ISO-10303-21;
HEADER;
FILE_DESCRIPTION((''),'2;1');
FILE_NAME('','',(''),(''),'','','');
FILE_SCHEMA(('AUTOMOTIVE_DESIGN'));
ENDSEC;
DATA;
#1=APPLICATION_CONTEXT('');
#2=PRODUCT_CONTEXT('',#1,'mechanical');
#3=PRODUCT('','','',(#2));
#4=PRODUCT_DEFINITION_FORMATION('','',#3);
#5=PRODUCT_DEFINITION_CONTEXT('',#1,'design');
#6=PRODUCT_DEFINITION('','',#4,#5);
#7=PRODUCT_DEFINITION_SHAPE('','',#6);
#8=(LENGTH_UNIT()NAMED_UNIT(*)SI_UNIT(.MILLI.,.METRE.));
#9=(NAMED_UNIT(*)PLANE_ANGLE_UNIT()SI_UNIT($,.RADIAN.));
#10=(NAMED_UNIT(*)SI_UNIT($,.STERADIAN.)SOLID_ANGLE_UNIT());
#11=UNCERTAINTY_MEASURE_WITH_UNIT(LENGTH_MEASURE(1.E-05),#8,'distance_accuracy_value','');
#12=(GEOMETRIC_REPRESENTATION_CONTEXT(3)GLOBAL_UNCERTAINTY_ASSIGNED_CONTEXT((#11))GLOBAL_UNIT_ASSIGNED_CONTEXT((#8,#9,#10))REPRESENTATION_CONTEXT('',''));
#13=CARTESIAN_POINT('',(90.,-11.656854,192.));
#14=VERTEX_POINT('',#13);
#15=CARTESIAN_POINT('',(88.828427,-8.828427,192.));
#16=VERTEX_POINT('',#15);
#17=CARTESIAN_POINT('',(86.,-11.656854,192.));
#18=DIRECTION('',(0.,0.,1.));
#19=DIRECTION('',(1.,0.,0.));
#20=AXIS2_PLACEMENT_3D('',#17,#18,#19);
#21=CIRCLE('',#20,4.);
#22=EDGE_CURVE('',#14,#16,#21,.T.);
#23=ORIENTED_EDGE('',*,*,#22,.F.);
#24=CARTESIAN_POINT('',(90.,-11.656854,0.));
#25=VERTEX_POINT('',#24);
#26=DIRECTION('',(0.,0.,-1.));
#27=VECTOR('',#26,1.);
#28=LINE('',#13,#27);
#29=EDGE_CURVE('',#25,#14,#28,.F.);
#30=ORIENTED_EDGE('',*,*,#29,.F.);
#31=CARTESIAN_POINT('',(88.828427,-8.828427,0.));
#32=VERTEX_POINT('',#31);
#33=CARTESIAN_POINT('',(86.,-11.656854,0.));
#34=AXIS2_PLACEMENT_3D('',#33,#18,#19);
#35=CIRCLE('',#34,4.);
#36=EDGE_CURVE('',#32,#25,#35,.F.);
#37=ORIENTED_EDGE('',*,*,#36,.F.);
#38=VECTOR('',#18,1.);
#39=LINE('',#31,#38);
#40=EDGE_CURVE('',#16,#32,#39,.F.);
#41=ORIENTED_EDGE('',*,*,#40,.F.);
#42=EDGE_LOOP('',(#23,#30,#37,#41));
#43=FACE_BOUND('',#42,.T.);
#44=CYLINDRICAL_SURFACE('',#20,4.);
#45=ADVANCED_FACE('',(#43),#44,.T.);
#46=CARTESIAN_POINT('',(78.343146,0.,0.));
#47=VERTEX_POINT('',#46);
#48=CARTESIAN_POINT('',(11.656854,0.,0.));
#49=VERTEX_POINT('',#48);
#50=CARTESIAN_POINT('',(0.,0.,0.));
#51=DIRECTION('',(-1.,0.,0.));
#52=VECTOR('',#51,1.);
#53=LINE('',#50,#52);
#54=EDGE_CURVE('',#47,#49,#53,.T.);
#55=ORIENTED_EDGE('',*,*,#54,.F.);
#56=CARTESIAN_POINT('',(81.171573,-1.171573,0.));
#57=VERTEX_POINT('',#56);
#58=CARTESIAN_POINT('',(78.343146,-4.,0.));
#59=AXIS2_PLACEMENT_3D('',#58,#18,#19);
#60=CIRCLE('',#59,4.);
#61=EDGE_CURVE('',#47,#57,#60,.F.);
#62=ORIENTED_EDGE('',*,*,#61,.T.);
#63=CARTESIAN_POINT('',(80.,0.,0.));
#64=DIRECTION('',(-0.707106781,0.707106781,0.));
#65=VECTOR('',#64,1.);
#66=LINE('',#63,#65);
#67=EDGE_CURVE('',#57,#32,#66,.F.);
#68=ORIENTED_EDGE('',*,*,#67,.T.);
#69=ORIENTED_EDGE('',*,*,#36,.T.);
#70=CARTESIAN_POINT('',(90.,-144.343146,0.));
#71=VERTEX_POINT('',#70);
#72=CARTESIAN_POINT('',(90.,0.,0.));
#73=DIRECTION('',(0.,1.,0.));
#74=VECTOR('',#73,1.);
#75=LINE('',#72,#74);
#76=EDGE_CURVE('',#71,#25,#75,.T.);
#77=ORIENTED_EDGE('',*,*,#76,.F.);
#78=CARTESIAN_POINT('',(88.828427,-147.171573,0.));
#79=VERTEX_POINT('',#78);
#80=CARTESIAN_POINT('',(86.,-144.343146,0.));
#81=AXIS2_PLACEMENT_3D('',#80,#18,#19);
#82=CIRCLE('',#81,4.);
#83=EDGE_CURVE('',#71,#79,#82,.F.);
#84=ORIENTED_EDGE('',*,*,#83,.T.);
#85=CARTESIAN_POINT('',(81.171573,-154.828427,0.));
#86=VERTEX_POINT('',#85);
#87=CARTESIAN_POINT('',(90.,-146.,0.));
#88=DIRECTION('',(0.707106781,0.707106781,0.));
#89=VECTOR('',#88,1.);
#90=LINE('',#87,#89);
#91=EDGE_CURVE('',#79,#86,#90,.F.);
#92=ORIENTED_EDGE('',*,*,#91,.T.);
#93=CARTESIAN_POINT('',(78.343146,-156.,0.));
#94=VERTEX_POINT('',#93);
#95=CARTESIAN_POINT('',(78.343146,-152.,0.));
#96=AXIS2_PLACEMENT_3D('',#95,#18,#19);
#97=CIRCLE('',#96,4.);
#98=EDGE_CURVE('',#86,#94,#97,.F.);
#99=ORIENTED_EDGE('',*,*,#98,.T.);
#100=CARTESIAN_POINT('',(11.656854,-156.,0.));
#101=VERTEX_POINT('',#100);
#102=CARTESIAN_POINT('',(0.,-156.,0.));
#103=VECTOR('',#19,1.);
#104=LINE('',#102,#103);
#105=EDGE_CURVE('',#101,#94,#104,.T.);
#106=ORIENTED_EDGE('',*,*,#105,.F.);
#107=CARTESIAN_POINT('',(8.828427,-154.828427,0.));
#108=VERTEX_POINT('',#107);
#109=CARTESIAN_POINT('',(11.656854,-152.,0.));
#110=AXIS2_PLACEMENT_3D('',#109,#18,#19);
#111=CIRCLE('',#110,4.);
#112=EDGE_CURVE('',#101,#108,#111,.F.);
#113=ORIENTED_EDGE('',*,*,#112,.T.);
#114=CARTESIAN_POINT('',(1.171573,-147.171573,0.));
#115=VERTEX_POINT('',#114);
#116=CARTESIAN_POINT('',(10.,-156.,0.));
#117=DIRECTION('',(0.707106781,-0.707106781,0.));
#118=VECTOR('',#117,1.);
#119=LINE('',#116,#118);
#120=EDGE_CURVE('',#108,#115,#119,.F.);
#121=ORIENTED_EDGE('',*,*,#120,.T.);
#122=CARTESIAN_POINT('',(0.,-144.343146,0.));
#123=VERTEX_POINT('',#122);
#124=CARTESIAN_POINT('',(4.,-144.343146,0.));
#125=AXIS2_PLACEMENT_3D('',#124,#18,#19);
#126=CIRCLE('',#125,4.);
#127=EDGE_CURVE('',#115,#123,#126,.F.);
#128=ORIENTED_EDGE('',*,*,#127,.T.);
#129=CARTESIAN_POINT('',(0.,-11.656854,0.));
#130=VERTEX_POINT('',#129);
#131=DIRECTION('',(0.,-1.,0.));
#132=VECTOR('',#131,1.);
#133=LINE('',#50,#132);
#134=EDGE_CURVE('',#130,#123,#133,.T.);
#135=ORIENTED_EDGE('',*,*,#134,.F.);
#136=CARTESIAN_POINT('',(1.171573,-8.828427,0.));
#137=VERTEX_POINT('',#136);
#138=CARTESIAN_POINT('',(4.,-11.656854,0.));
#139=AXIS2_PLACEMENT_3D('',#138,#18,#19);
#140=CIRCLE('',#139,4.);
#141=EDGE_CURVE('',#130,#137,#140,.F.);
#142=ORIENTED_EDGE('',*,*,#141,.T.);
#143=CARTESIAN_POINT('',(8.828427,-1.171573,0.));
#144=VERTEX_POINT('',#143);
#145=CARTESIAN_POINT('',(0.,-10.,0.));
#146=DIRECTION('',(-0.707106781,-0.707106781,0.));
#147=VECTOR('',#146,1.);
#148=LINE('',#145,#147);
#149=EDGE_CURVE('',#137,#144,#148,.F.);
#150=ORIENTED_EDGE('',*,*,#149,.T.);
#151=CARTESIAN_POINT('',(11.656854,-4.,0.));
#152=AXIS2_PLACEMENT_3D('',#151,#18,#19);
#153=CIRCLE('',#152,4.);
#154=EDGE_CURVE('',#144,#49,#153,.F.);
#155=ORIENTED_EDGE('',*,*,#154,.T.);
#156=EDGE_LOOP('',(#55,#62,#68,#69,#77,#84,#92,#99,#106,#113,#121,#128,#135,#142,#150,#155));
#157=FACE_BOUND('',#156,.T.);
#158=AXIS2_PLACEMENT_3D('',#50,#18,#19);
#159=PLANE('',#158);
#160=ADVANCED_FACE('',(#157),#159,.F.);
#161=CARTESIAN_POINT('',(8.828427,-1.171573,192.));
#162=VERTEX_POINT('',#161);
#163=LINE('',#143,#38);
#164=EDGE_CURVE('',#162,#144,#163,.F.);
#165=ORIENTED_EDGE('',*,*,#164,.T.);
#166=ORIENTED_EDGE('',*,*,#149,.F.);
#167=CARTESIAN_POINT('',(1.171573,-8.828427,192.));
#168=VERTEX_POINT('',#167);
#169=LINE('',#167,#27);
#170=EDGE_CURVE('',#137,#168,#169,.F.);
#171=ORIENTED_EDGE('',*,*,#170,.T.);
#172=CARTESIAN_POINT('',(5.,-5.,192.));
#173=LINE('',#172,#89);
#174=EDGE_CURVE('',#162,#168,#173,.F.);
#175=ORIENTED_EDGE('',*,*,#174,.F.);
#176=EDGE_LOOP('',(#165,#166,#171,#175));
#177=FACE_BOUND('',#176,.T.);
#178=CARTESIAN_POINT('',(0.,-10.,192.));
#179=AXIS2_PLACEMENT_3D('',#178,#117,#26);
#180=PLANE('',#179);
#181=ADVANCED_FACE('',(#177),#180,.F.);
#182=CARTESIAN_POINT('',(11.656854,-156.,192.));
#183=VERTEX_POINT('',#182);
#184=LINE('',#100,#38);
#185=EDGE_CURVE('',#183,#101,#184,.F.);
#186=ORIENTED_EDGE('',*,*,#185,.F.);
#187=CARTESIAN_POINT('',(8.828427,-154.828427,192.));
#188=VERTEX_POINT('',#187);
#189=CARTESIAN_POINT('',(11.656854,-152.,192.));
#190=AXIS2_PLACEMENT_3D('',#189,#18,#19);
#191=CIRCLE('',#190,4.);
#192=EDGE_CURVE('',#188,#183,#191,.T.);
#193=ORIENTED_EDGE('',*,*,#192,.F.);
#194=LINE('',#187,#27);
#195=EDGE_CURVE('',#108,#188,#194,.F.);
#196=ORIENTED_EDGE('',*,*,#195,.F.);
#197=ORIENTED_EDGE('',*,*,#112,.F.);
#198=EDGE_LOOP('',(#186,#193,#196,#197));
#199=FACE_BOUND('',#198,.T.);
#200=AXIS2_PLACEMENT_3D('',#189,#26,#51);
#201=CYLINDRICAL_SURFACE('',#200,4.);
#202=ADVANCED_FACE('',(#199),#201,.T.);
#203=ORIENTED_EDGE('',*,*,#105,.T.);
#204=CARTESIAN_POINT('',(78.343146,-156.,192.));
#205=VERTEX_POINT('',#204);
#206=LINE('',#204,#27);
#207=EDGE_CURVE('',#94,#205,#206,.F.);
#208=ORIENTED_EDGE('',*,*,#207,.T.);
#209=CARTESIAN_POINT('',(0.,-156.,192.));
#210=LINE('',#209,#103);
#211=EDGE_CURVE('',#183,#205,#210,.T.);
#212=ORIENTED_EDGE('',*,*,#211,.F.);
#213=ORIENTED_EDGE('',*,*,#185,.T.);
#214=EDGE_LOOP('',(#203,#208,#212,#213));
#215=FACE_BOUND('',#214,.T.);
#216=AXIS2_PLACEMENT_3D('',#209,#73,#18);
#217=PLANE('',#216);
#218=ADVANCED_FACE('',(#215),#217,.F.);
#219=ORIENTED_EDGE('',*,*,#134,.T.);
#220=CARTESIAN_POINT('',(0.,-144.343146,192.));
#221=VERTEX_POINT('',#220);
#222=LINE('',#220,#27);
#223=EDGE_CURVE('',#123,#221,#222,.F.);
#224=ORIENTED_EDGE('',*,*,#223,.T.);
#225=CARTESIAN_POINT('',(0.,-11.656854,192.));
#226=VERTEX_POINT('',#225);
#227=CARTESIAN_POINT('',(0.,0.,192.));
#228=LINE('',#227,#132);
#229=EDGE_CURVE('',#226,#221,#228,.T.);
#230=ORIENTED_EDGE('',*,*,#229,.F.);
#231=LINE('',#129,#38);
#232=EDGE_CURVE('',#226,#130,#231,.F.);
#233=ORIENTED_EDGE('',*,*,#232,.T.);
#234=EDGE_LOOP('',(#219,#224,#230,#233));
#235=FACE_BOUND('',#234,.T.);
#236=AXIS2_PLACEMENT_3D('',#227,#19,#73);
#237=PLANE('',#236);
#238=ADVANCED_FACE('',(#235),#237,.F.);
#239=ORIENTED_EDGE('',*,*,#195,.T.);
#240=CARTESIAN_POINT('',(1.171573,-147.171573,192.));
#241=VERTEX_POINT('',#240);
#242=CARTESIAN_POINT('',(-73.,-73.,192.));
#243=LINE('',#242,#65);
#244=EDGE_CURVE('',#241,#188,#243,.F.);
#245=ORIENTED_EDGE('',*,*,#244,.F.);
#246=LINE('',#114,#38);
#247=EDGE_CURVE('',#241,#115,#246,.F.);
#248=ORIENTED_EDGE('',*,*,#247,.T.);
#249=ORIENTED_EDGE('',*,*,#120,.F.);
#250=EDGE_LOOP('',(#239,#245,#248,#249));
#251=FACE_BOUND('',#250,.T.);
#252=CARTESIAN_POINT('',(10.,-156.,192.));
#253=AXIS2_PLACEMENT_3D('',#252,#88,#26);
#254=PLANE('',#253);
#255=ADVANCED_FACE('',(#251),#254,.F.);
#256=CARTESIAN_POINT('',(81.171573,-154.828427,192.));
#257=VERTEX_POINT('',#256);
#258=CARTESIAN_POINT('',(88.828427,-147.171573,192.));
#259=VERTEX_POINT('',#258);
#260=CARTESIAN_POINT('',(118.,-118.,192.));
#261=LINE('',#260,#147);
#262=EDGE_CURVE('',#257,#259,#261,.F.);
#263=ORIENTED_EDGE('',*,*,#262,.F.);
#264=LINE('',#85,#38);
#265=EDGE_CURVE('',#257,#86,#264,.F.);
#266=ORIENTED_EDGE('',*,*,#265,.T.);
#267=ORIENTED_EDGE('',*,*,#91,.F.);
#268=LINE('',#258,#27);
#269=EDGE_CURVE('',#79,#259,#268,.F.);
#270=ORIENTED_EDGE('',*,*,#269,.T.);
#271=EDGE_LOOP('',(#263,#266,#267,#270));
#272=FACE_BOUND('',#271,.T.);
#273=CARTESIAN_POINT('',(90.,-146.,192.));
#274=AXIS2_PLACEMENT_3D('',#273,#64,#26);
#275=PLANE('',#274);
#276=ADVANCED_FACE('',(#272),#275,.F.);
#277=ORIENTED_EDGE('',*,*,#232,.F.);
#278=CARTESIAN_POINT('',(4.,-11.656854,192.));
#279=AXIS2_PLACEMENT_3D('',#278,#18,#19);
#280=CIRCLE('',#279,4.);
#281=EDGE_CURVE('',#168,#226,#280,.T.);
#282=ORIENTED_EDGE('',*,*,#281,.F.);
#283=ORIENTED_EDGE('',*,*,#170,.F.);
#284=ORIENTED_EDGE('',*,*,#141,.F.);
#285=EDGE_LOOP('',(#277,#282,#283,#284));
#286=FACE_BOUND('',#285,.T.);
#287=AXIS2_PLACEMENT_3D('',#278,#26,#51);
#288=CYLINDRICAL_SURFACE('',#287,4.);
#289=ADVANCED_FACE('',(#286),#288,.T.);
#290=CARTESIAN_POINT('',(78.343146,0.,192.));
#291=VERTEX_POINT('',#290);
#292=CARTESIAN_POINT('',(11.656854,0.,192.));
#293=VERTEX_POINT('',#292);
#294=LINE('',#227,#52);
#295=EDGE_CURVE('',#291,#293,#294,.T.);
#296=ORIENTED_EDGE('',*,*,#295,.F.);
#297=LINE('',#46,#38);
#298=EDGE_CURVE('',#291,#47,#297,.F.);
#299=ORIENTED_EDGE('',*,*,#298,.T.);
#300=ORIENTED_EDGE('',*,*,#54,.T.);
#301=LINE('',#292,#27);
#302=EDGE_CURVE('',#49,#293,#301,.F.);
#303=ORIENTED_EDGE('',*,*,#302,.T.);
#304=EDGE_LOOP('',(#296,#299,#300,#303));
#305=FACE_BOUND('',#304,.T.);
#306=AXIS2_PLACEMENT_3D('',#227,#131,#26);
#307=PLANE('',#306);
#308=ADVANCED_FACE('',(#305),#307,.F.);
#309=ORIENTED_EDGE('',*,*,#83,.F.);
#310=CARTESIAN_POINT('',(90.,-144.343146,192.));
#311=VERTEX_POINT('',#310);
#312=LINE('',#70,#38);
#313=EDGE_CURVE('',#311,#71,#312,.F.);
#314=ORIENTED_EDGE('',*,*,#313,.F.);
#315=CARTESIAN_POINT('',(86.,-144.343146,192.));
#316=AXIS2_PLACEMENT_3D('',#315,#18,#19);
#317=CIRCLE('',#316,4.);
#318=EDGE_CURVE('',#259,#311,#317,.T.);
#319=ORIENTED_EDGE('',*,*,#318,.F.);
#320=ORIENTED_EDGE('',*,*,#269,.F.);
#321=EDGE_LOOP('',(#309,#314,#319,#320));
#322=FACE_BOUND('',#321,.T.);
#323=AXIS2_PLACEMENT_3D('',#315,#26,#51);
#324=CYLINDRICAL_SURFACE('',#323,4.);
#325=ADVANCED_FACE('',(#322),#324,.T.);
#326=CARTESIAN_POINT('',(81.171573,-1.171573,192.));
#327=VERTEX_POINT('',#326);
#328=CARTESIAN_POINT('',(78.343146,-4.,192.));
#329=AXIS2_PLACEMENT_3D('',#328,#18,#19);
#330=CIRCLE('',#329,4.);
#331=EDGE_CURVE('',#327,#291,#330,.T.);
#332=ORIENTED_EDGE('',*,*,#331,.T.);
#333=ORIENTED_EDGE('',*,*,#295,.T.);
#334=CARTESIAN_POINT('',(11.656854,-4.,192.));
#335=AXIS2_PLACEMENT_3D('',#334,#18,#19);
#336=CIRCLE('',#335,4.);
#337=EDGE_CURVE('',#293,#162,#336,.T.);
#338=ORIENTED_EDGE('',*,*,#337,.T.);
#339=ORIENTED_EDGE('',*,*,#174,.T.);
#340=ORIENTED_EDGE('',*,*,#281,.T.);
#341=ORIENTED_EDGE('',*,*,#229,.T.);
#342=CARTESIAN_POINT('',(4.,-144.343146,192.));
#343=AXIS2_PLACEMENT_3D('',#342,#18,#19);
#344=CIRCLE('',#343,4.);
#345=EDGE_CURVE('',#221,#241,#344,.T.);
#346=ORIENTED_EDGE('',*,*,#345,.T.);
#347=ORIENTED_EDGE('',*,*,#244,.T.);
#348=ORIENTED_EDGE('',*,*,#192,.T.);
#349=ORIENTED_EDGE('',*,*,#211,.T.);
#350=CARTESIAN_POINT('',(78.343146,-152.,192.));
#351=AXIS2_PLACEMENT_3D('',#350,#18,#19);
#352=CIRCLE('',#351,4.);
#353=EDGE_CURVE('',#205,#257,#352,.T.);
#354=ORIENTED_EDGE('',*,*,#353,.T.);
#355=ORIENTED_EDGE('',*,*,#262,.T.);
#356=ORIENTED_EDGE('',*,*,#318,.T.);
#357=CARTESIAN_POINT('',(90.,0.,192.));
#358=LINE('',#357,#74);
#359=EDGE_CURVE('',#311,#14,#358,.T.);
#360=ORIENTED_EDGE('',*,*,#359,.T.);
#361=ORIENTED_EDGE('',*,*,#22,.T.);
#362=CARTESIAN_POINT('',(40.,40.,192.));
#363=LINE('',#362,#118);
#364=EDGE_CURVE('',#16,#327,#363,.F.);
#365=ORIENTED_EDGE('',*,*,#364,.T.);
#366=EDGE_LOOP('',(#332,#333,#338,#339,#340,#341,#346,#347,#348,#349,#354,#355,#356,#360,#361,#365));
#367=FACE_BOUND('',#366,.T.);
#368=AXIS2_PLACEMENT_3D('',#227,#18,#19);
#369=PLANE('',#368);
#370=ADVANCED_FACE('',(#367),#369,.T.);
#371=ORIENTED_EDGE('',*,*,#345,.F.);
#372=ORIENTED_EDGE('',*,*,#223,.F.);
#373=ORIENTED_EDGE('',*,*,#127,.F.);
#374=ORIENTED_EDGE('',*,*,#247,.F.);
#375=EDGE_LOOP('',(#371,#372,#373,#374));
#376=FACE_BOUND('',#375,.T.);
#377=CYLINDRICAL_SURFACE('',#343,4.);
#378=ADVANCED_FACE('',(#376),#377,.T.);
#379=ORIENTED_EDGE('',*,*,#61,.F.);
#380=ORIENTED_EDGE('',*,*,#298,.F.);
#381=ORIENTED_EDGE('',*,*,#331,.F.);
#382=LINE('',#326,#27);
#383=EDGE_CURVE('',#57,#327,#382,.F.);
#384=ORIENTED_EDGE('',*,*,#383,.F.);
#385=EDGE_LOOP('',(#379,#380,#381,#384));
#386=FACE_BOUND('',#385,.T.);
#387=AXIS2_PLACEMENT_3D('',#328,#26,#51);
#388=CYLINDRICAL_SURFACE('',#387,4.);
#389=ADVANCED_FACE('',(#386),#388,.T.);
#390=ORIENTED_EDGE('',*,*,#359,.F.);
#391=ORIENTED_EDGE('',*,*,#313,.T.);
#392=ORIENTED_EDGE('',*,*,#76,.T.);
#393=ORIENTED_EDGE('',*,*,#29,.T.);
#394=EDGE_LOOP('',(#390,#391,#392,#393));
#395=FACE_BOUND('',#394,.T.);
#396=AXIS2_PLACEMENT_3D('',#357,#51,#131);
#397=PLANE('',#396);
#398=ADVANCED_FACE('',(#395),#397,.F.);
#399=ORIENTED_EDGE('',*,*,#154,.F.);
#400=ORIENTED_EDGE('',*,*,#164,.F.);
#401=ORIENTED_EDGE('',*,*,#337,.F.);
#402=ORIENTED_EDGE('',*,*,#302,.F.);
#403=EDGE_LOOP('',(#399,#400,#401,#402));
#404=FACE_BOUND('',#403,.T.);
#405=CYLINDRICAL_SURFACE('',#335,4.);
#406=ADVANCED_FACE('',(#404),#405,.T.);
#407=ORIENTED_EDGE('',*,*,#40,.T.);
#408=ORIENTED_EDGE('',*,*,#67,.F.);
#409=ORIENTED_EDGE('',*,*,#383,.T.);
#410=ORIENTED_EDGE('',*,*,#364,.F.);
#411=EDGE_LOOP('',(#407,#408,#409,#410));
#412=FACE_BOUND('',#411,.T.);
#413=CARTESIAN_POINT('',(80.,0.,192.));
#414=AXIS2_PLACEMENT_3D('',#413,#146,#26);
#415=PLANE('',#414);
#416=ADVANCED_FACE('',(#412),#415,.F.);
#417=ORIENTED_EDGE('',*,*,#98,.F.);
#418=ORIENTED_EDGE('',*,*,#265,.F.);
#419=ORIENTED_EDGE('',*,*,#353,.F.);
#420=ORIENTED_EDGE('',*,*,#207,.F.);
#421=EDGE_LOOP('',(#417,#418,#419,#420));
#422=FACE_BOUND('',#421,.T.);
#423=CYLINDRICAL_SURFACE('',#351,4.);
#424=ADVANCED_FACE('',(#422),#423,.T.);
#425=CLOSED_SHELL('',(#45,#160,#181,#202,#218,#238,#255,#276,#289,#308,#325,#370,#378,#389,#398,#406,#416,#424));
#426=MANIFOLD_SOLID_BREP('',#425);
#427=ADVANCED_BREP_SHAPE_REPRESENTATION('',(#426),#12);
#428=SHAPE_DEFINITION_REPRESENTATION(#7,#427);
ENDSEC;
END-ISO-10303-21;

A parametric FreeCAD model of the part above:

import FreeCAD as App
import Part
import Sketcher


def edges_at(feature, points):
    """Names of the edges that pass closest to the given points."""
    edges = feature.Shape.Edges
    near = lambda p: min(range(len(edges)), key=lambda i: edges[i].distToShape(Part.Vertex(*p))[0])
    return sorted({f"Edge{near(p) + 1}" for p in points})

doc = App.newDocument("Part")
body = doc.addObject("PartDesign::Body", "Body")

# Sketch on XY plane
sketch1 = doc.addObject("Sketcher::SketchObject", "Sketch")
body.addObject(sketch1)
sketch1.AttachmentSupport = (doc.XY_Plane, [""])
sketch1.MapMode = "FlatFace"
sketch1.addGeometry(Part.LineSegment(App.Vector(0, 0, 0), App.Vector(0, -156, 0)), False)
sketch1.addGeometry(Part.LineSegment(App.Vector(0, -156, 0), App.Vector(90, -156, 0)), False)
sketch1.addGeometry(Part.LineSegment(App.Vector(90, -156, 0), App.Vector(90, 0, 0)), False)
sketch1.addGeometry(Part.LineSegment(App.Vector(90, 0, 0), App.Vector(0, 0, 0)), False)
sketch1.addConstraint(Sketcher.Constraint("Coincident", 0, 2, 1, 1))
sketch1.addConstraint(Sketcher.Constraint("Coincident", 1, 2, 2, 1))
sketch1.addConstraint(Sketcher.Constraint("Coincident", 2, 2, 3, 1))
sketch1.addConstraint(Sketcher.Constraint("Coincident", 3, 2, 0, 1))
sketch1.addConstraint(Sketcher.Constraint("Vertical", 0))
sketch1.addConstraint(Sketcher.Constraint("Horizontal", 1))
sketch1.addConstraint(Sketcher.Constraint("Vertical", 2))
sketch1.addConstraint(Sketcher.Constraint("Horizontal", 3))
sketch1.addConstraint(Sketcher.Constraint("Coincident", 3, 2, -1, 1))
sketch1.addConstraint(Sketcher.Constraint("DistanceX", 1, 1, 1, 2, 90.0))
sketch1.addConstraint(Sketcher.Constraint("DistanceY", 0, 2, 0, 1, 156.0))
pad1 = doc.addObject("PartDesign::Pad", "Pad")
body.addObject(pad1)
pad1.Profile = sketch1
pad1.Length = 192
doc.recompute()

chamfer = doc.addObject("PartDesign::Chamfer", "Chamfer")
body.addObject(chamfer)
chamfer.Base = (pad1, edges_at(pad1, [
    (0, 0, 96),
    (90, 0, 96),
    (90, -156, 96),
    (0, -156, 96),
]))
chamfer.Size = 10
doc.recompute()

fillet = doc.addObject("PartDesign::Fillet", "Fillet")
body.addObject(fillet)
fillet.Base = (chamfer, edges_at(chamfer, [
    (80, -156, 96),
    (10, -156, 96),
    (0, -10, 96),
    (0, -146, 96),
    (90, -10, 96),
    (90, -146, 96),
    (80, 0, 96),
    (10, 0, 96),
]))
fillet.Radius = 4

doc.recompute()
